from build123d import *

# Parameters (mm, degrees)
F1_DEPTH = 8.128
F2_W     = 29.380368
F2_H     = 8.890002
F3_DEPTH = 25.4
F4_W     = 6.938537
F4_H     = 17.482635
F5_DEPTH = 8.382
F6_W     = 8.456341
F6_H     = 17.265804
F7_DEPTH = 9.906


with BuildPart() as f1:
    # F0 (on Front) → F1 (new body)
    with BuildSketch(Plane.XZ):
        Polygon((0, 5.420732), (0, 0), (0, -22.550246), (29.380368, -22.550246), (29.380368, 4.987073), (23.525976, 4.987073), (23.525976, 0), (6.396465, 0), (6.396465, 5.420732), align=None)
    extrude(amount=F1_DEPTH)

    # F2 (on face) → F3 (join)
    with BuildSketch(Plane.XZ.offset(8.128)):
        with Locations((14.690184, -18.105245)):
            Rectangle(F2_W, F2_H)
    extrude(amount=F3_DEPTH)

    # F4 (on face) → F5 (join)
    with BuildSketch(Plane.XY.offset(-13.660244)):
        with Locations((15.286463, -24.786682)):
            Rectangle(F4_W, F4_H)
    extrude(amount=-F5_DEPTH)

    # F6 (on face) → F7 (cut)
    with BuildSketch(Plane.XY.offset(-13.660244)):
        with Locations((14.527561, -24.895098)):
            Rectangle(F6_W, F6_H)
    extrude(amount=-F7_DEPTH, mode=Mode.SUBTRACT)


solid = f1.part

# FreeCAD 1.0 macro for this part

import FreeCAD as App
import Part
import Sketcher

V = App.Vector
Q = App.Units.Quantity

doc = App.newDocument("Part")
params = doc.addObject("Spreadsheet::Sheet", "Params")
for row, (alias, value) in enumerate([
    ("pad1_length", "0.32 in"),
    ("sketch2_height", "0.3500001 in"),
    ("pad2_length", "1 in"),
    ("pad3_length", "0.33 in"),
    ("pocket1_length", "0.39 in"),
], start=1):
    params.set(f"A{row}", alias)
    params.set(f"B{row}", "=" + value)
    params.setAlias(f"B{row}", alias)

body = doc.addObject("PartDesign::Body", "Body")

# Sketch on XZ plane
sketch1 = doc.addObject("Sketcher::SketchObject", "Sketch")
body.addObject(sketch1)
sketch1.AttachmentSupport = (doc.XZ_Plane, [""])
sketch1.MapMode = "FlatFace"
sketch1.addGeometry([
    Part.LineSegment(V(0, 5.420732, 0), V(0, -22.550246, 0)),  # 0
    Part.LineSegment(V(0, -22.550246, 0), V(29.380368, -22.550246, 0)),  # 1
    Part.LineSegment(V(29.380368, -22.550246, 0), V(29.380368, 4.987073, 0)),  # 2
    Part.LineSegment(V(29.380368, 4.987073, 0), V(23.525976, 4.987073, 0)),  # 3
    Part.LineSegment(V(23.525976, 4.987073, 0), V(23.525976, 0, 0)),  # 4
    Part.LineSegment(V(23.525976, 0, 0), V(6.396465, 0, 0)),  # 5
    Part.LineSegment(V(6.396465, 0, 0), V(6.396465, 5.420732, 0)),  # 6
    Part.LineSegment(V(6.396465, 5.420732, 0), V(0, 5.420732, 0)),  # 7
], False)
sketch1.addConstraint([
    Sketcher.Constraint("Coincident", 0, 2, 1, 1),
    Sketcher.Constraint("Coincident", 1, 2, 2, 1),
    Sketcher.Constraint("Coincident", 2, 2, 3, 1),
    Sketcher.Constraint("Coincident", 3, 2, 4, 1),
    Sketcher.Constraint("Coincident", 4, 2, 5, 1),
    Sketcher.Constraint("Coincident", 5, 2, 6, 1),
    Sketcher.Constraint("Coincident", 6, 2, 7, 1),
    Sketcher.Constraint("Coincident", 7, 2, 0, 1),
    Sketcher.Constraint("Vertical", 0),
    Sketcher.Constraint("Horizontal", 1),
    Sketcher.Constraint("Vertical", 2),
    Sketcher.Constraint("Horizontal", 3),
    Sketcher.Constraint("Vertical", 4),
    Sketcher.Constraint("Horizontal", 5),
    Sketcher.Constraint("Vertical", 6),
    Sketcher.Constraint("Horizontal", 7),
    Sketcher.Constraint("PointOnObject", 0, 2, -2),
    Sketcher.Constraint("PointOnObject", 4, 2, -1),
    Sketcher.Constraint("DistanceX", 1, 1, 1, 2, 29.380368),
    Sketcher.Constraint("DistanceX", 5, 2, 5, 1, 17.129511),
    Sketcher.Constraint("DistanceY", 0, 2, 0, 1, 27.970978),
    Sketcher.Constraint("DistanceY", 2, 1, 2, 2, 27.537319),
    Sketcher.Constraint("DistanceX", 3, 2, 3, 1, 5.854392),
    Sketcher.Constraint("DistanceY", 4, 2, 4, 1, 4.987073),
])
pad1 = doc.addObject("PartDesign::Pad", "Pad")
body.addObject(pad1)
pad1.Profile = sketch1
pad1.setExpression("Length", "Params.pad1_length")

# Sketch on XZ plane
sketch2 = doc.addObject("Sketcher::SketchObject", "Sketch001")
body.addObject(sketch2)
sketch2.AttachmentSupport = (doc.XZ_Plane, [""])
sketch2.MapMode = "FlatFace"
sketch2.AttachmentOffset = App.Placement(V(0, 0, 0.32 * 25.4), App.Rotation())
sketch2.addGeometry([
    Part.LineSegment(V(0, -13.660244, 0), V(0, -22.550246, 0)),
    Part.LineSegment(V(0, -22.550246, 0), V(29.380368, -22.550246, 0)),
    Part.LineSegment(V(29.380368, -22.550246, 0), V(29.380368, -13.660244, 0)),
    Part.LineSegment(V(29.380368, -13.660244, 0), V(0, -13.660244, 0)),
], False)
sketch2.addConstraint([
    Sketcher.Constraint("Coincident", 0, 2, 1, 1),
    Sketcher.Constraint("Coincident", 1, 2, 2, 1),
    Sketcher.Constraint("Coincident", 2, 2, 3, 1),
    Sketcher.Constraint("Coincident", 3, 2, 0, 1),
    Sketcher.Constraint("Vertical", 0),
    Sketcher.Constraint("Horizontal", 1),
    Sketcher.Constraint("Vertical", 2),
    Sketcher.Constraint("Horizontal", 3),
    Sketcher.Constraint("PointOnObject", 0, 2, -2),
    Sketcher.Constraint("DistanceY", 0, 2, 0, 1, Q("0.3500001 in")),
    Sketcher.Constraint("DistanceX", 1, 1, 1, 2, 29.380368),
    Sketcher.Constraint("DistanceY", 0, 2, -1, 1, 22.550246),
])
sketch2.setExpression("Constraints[9]", "Params.sketch2_height")
pad2 = doc.addObject("PartDesign::Pad", "Pad001")
body.addObject(pad2)
pad2.Profile = sketch2
pad2.setExpression("Length", "Params.pad2_length")

# Sketch on XY plane
sketch3 = doc.addObject("Sketcher::SketchObject", "Sketch002")
body.addObject(sketch3)
sketch3.AttachmentSupport = (doc.XY_Plane, [""])
sketch3.MapMode = "FlatFace"
sketch3.AttachmentOffset = App.Placement(V(0, 0, -13.660244), App.Rotation())
sketch3.addGeometry([
    Part.LineSegment(V(11.817194, -16.045365, 0), V(11.817194, -33.527999, 0)),
    Part.LineSegment(V(11.817194, -33.527999, 0), V(18.755731, -33.527999, 0)),
    Part.LineSegment(V(18.755731, -33.527999, 0), V(18.755731, -16.045365, 0)),
    Part.LineSegment(V(18.755731, -16.045365, 0), V(11.817194, -16.045365, 0)),
], False)
sketch3.addConstraint([
    Sketcher.Constraint("Coincident", 0, 2, 1, 1),
    Sketcher.Constraint("Coincident", 1, 2, 2, 1),
    Sketcher.Constraint("Coincident", 2, 2, 3, 1),
    Sketcher.Constraint("Coincident", 3, 2, 0, 1),
    Sketcher.Constraint("Vertical", 0),
    Sketcher.Constraint("Horizontal", 1),
    Sketcher.Constraint("Vertical", 2),
    Sketcher.Constraint("Horizontal", 3),
    Sketcher.Constraint("DistanceY", 0, 2, -1, 1, Q("1.32 in")),
    Sketcher.Constraint("DistanceX", 1, 1, 1, 2, 6.938537),
    Sketcher.Constraint("DistanceY", 0, 2, 0, 1, 17.482635),
    Sketcher.Constraint("DistanceX", -1, 1, 1, 2, 18.755731),
])
pad3 = doc.addObject("PartDesign::Pad", "Pad002")
body.addObject(pad3)
pad3.Profile = sketch3
pad3.setExpression("Length", "Params.pad3_length")
pad3.Reversed = True

# Sketch on XY plane
sketch4 = doc.addObject("Sketcher::SketchObject", "Sketch003")
body.addObject(sketch4)
sketch4.AttachmentSupport = (doc.XY_Plane, [""])
sketch4.MapMode = "FlatFace"
sketch4.AttachmentOffset = App.Placement(V(0, 0, -13.660244), App.Rotation())
sketch4.addGeometry([
    Part.LineSegment(V(10.29939, -16.262196, 0), V(10.29939, -33.528, 0)),
    Part.LineSegment(V(10.29939, -33.528, 0), V(18.755731, -33.528, 0)),
    Part.LineSegment(V(18.755731, -33.528, 0), V(18.755731, -16.262196, 0)),
    Part.LineSegment(V(18.755731, -16.262196, 0), V(10.29939, -16.262196, 0)),
], False)
sketch4.addConstraint([
    Sketcher.Constraint("Coincident", 0, 2, 1, 1),
    Sketcher.Constraint("Coincident", 1, 2, 2, 1),
    Sketcher.Constraint("Coincident", 2, 2, 3, 1),
    Sketcher.Constraint("Coincident", 3, 2, 0, 1),
    Sketcher.Constraint("Vertical", 0),
    Sketcher.Constraint("Horizontal", 1),
    Sketcher.Constraint("Vertical", 2),
    Sketcher.Constraint("Horizontal", 3),
    Sketcher.Constraint("DistanceY", 0, 2, -1, 1, Q("1.32 in")),
    Sketcher.Constraint("DistanceX", 1, 1, 1, 2, 8.456341),
    Sketcher.Constraint("DistanceY", 0, 2, 0, 1, 17.265804),
    Sketcher.Constraint("DistanceX", -1, 1, 0, 2, 10.29939),
])
pocket1 = doc.addObject("PartDesign::Pocket", "Pocket")
body.addObject(pocket1)
pocket1.Profile = sketch4
pocket1.setExpression("Length", "Params.pocket1_length")

doc.recompute()
